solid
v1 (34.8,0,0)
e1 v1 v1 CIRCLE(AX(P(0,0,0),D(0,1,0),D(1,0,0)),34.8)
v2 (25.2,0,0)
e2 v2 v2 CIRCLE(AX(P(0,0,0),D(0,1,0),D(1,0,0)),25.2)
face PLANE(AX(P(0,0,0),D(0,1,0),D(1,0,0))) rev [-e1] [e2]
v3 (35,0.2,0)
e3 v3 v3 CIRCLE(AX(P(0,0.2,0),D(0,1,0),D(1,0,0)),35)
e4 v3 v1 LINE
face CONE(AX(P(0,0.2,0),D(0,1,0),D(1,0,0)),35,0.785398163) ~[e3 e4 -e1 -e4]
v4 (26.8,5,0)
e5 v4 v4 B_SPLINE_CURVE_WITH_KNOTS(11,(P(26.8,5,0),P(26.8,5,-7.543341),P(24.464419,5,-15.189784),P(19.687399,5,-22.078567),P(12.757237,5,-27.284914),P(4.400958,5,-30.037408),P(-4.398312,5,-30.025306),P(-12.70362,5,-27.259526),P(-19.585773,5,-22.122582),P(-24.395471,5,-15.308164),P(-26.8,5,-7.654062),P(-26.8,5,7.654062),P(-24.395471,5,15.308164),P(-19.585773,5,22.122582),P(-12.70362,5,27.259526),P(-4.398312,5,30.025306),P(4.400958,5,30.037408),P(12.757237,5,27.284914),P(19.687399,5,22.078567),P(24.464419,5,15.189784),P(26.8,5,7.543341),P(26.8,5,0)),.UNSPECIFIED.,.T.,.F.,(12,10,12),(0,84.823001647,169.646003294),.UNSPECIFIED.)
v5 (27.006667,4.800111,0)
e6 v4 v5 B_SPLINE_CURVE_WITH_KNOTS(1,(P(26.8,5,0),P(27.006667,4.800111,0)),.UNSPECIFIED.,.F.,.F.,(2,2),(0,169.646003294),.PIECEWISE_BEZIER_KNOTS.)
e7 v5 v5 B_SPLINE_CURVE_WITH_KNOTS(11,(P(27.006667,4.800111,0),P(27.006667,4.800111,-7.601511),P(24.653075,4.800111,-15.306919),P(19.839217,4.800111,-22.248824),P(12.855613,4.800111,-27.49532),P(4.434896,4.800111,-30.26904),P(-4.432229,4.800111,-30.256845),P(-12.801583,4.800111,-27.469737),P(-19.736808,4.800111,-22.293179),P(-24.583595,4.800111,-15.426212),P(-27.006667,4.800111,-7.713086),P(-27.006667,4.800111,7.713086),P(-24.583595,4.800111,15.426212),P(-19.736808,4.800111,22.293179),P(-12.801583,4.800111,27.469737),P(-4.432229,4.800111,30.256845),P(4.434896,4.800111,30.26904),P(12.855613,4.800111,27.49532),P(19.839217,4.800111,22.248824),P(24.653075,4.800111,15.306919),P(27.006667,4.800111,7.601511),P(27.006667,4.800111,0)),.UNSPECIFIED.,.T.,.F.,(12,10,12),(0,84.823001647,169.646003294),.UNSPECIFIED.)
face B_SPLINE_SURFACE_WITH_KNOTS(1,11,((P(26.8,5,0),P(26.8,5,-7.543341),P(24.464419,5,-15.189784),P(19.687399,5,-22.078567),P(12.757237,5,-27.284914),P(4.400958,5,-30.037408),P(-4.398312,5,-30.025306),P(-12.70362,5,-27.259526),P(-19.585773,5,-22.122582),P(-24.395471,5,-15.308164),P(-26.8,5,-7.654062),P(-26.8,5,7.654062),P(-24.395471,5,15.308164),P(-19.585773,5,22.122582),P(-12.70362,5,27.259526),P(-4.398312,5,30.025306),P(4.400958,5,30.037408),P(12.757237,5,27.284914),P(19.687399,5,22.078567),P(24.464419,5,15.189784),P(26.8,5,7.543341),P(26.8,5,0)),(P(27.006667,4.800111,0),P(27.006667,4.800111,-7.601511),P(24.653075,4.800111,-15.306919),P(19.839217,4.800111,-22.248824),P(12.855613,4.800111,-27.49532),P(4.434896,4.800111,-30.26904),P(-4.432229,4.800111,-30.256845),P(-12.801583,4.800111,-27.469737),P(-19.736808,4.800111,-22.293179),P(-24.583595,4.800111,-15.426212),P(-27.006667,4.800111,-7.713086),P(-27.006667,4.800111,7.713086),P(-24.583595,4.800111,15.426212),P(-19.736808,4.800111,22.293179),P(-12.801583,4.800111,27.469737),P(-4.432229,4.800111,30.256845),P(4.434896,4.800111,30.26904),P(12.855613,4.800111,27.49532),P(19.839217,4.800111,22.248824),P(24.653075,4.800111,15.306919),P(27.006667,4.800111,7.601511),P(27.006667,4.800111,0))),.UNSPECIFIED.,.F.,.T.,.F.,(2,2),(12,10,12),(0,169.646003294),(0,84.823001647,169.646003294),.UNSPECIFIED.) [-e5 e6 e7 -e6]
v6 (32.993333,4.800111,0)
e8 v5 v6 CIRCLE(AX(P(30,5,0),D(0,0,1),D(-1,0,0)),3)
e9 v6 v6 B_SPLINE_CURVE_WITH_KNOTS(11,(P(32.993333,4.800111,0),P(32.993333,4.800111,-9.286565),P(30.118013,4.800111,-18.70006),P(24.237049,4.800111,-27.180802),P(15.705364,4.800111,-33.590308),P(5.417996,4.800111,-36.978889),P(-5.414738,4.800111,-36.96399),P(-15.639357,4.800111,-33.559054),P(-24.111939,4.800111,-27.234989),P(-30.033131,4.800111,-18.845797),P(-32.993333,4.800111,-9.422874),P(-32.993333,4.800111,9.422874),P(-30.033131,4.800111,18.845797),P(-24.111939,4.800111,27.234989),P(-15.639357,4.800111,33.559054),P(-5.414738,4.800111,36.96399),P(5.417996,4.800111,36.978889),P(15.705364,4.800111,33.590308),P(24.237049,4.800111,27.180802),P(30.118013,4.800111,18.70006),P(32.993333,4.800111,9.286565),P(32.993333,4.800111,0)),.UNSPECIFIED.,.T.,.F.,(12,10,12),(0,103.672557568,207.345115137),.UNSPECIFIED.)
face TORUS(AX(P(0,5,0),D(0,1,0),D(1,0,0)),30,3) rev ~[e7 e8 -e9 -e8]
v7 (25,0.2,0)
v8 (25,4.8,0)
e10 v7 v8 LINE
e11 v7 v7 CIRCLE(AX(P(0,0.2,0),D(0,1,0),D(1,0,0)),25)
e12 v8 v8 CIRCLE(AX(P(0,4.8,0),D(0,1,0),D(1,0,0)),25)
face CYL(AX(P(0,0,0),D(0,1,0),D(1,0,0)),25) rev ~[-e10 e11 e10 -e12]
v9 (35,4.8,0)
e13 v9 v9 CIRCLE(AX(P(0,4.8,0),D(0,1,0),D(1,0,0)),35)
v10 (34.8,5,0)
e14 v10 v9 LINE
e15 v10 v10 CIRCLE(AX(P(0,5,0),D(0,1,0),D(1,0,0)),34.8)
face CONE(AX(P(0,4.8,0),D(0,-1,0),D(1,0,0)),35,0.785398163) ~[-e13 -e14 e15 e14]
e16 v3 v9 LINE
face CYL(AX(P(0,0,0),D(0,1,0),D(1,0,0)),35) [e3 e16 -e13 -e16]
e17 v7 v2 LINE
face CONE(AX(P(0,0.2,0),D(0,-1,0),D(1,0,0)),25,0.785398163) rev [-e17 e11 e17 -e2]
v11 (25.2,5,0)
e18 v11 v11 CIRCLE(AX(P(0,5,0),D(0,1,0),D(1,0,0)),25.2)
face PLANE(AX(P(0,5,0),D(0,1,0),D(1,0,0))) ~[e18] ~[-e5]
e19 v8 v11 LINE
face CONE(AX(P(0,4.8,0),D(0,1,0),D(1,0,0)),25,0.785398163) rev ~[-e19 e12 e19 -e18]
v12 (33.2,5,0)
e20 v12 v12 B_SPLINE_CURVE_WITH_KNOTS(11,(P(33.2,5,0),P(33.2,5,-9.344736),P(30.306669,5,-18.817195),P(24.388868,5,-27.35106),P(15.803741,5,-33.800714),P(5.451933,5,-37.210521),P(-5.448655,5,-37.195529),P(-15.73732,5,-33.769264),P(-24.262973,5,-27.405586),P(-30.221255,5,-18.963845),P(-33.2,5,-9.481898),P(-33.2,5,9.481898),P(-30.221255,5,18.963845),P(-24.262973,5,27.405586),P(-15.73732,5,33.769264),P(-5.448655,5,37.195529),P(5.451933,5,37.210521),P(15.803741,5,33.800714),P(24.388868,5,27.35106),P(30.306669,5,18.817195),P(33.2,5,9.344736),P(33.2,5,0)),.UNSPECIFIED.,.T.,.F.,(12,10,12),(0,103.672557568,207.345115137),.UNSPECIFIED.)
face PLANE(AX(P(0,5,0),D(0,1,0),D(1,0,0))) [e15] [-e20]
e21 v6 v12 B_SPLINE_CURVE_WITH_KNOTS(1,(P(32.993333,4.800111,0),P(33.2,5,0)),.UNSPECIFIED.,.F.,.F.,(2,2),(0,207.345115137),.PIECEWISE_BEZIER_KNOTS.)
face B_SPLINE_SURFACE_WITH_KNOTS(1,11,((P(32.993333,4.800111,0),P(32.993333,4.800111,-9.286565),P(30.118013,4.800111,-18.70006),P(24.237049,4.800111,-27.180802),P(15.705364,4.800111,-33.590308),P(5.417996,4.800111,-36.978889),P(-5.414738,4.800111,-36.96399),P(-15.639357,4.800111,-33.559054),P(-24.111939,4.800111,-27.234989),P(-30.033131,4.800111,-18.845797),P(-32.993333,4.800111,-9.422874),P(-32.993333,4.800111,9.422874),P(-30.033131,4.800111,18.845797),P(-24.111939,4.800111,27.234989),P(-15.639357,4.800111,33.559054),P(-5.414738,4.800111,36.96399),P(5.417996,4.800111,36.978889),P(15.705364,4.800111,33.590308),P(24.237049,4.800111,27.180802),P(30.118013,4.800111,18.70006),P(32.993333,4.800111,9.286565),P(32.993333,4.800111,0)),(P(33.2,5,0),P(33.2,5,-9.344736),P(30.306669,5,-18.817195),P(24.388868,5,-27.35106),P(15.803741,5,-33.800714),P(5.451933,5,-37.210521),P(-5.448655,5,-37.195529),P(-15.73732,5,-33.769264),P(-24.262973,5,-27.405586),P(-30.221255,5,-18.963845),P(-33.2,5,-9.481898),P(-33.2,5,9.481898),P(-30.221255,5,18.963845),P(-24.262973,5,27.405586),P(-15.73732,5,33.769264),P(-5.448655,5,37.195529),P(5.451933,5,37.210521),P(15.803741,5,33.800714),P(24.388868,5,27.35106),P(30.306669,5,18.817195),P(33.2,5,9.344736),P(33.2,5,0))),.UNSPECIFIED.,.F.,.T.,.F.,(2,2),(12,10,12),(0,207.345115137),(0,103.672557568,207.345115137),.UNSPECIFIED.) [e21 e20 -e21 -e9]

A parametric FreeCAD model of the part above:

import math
import FreeCAD as App
import Part
import Sketcher

V = App.Vector


def edges_at(feature, points):
    """Names of the edges that pass closest to the given points."""
    edges = feature.Shape.Edges
    near = lambda p: min(range(len(edges)), key=lambda i: edges[i].distToShape(Part.Vertex(*p))[0])
    return sorted({f"Edge{near(p) + 1}" for p in points})

doc = App.newDocument("Part")
body = doc.addObject("PartDesign::Body", "Body")

# Sketch on XY plane
sketch1 = doc.addObject("Sketcher::SketchObject", "Sketch")
body.addObject(sketch1)
sketch1.AttachmentSupport = (doc.XY_Plane, [""])
sketch1.MapMode = "FlatFace"
sketch1.addGeometry([
    Part.LineSegment(V(25, 5, 0), V(25, 0, 0)),  # 0
    Part.LineSegment(V(25, 0, 0), V(35, 0, 0)),  # 1
    Part.LineSegment(V(35, 0, 0), V(35, 5, 0)),  # 2
    Part.LineSegment(V(35, 5, 0), V(33, 5, 0)),  # 3
    Part.ArcOfCircle(Part.Circle(V(30, 5, 0), V(0, 0, 1), 3), math.radians(180), math.radians(360)),  # 4
    Part.LineSegment(V(27, 5, 0), V(25, 5, 0)),  # 5
], False)
sketch1.addConstraint([
    Sketcher.Constraint("Coincident", 0, 2, 1, 1),
    Sketcher.Constraint("Coincident", 1, 2, 2, 1),
    Sketcher.Constraint("Coincident", 2, 2, 3, 1),
    Sketcher.Constraint("Coincident", 3, 2, 4, 2),
    Sketcher.Constraint("Coincident", 4, 1, 5, 1),
    Sketcher.Constraint("Coincident", 5, 2, 0, 1),
    Sketcher.Constraint("Vertical", 0),
    Sketcher.Constraint("Horizontal", 1),
    Sketcher.Constraint("Vertical", 2),
    Sketcher.Constraint("Horizontal", 3),
    Sketcher.Constraint("Horizontal", 5),
    Sketcher.Constraint("PointOnObject", 0, 2, -1),
    Sketcher.Constraint("Horizontal", 4, 3, 2, 2),
    Sketcher.Constraint("Horizontal", 3, 2, 4, 1),
    Sketcher.Constraint("Equal", 3, 5),
    Sketcher.Constraint("Radius", 4, 3.0),
    Sketcher.Constraint("DistanceX", 1, 1, 1, 2, 10.0),
    Sketcher.Constraint("DistanceY", 0, 2, 0, 1, 5.0),
    Sketcher.Constraint("DistanceX", -1, 1, 0, 2, 25.0),
])
revolution = doc.addObject("PartDesign::Revolution", "Revolution")
body.addObject(revolution)
revolution.Profile = sketch1
revolution.ReferenceAxis = (sketch1, ["V_Axis"])
revolution.Angle = 360
doc.recompute()

chamfer = doc.addObject("PartDesign::Chamfer", "Chamfer")
body.addObject(chamfer)
chamfer.Base = (revolution, edges_at(revolution, [
    (-25, 0, 0),
    (-35, 0, 0),
    (-35, 5, 0),
    (-33, 5, 0),
    (-27, 5, 0),
    (-25, 5, 0),
]))
chamfer.Size = 0.2

doc.recompute()
